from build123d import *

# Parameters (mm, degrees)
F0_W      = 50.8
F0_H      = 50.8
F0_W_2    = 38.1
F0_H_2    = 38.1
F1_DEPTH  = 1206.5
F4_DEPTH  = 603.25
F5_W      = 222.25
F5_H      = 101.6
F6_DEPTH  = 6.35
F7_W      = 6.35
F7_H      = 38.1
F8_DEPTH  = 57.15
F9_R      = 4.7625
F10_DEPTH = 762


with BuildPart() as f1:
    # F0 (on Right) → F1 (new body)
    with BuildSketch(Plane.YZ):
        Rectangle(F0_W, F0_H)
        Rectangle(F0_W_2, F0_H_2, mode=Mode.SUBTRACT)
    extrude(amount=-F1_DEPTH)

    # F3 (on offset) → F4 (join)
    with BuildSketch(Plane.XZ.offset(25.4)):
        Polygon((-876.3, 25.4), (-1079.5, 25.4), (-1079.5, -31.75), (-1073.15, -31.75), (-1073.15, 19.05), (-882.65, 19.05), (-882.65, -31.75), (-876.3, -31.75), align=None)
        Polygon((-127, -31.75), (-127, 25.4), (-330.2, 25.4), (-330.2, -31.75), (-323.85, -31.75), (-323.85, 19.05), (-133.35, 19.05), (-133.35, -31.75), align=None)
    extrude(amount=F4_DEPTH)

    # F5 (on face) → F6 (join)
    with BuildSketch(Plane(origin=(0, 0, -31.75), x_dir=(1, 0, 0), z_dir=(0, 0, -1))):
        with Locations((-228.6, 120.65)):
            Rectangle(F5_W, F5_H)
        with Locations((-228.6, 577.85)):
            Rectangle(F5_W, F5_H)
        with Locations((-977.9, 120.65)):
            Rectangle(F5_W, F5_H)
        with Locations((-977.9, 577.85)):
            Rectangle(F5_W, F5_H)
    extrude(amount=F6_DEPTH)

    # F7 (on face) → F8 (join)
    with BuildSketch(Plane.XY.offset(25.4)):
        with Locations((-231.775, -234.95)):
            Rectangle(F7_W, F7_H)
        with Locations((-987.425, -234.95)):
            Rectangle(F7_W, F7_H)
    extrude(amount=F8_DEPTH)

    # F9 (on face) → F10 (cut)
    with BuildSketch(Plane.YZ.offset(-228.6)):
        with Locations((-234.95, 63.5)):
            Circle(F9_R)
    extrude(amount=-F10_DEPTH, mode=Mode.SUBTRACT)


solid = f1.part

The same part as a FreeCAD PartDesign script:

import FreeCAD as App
import Part
import Sketcher
Q = App.Units.Quantity


def add_polygon(sketch, points):
    """Adds a closed chain of lines whose ends are joined by coincident constraints."""
    first, n = sketch.GeometryCount, len(points)
    for a, b in zip(points, points[1:] + points[:1]):
        sketch.addGeometry(Part.LineSegment(App.Vector(*a, 0), App.Vector(*b, 0)), False)
    for i in range(n):
        sketch.addConstraint(Sketcher.Constraint("Coincident", first + i, 2, first + (i + 1) % n, 1))

doc = App.newDocument("Part")
body = doc.addObject("PartDesign::Body", "Body")

# Sketch on YZ plane
sketch1 = body.newObject("Sketcher::SketchObject", "Sketch")
sketch1.AttachmentSupport = (doc.getObject("YZ_Plane"), [""])
sketch1.MapMode = "FlatFace"
add_polygon(sketch1, [(-25.4, 25.4), (-25.4, -25.4), (25.4, -25.4), (25.4, 25.4)])  # lines 0-3
add_polygon(sketch1, [(19.05, -19.05), (-19.05, -19.05), (-19.05, 19.05), (19.05, 19.05)])  # lines 4-7
sketch1.addConstraint(Sketcher.Constraint("Vertical", 0))
sketch1.addConstraint(Sketcher.Constraint("Horizontal", 1))
sketch1.addConstraint(Sketcher.Constraint("Vertical", 2))
sketch1.addConstraint(Sketcher.Constraint("Horizontal", 3))
sketch1.addConstraint(Sketcher.Constraint("Horizontal", 4))
sketch1.addConstraint(Sketcher.Constraint("Vertical", 5))
sketch1.addConstraint(Sketcher.Constraint("Horizontal", 6))
sketch1.addConstraint(Sketcher.Constraint("Vertical", 7))
sketch1.addConstraint(Sketcher.Constraint("Symmetric", 0, 2, 2, 2, -1, 1))
sketch1.addConstraint(Sketcher.Constraint("Symmetric", 4, 2, 6, 2, -1, 1))
sketch1.addConstraint(Sketcher.Constraint("Equal", 3, 0))
sketch1.addConstraint(Sketcher.Constraint("Equal", 6, 5))
sketch1.addConstraint(Sketcher.Constraint("DistanceX", 1, 1, 1, 2, Q("2 in")))
sketch1.addConstraint(Sketcher.Constraint("DistanceX", 4, 2, 4, 1, Q("1.5 in")))
pad1 = body.newObject("PartDesign::Pad", "Pad")
pad1.Profile = sketch1
pad1.Length = Q("47.5 in")
pad1.Reversed = True

# Sketch on XZ plane
sketch2 = body.newObject("Sketcher::SketchObject", "Sketch001")
sketch2.AttachmentSupport = (doc.getObject("XZ_Plane"), [""])
sketch2.MapMode = "FlatFace"
sketch2.AttachmentOffset = App.Placement(App.Vector(0, 0, 1 * 25.4), App.Rotation())
add_polygon(sketch2, [(-876.3, 25.4), (-1079.5, 25.4), (-1079.5, -31.75), (-1073.15, -31.75), (-1073.15, 19.05), (-882.65, 19.05), (-882.65, -31.75), (-876.3, -31.75)])  # lines 0-7
add_polygon(sketch2, [(-127, -31.75), (-127, 25.4), (-330.2, 25.4), (-330.2, -31.75), (-323.85, -31.75), (-323.85, 19.05), (-133.35, 19.05), (-133.35, -31.75)])  # lines 8-15
sketch2.addConstraint(Sketcher.Constraint("Horizontal", 0))
sketch2.addConstraint(Sketcher.Constraint("Vertical", 1))
sketch2.addConstraint(Sketcher.Constraint("Horizontal", 2))
sketch2.addConstraint(Sketcher.Constraint("Vertical", 3))
sketch2.addConstraint(Sketcher.Constraint("Horizontal", 4))
sketch2.addConstraint(Sketcher.Constraint("Vertical", 5))
sketch2.addConstraint(Sketcher.Constraint("Horizontal", 6))
sketch2.addConstraint(Sketcher.Constraint("Vertical", 7))
sketch2.addConstraint(Sketcher.Constraint("Vertical", 8))
sketch2.addConstraint(Sketcher.Constraint("Horizontal", 9))
sketch2.addConstraint(Sketcher.Constraint("Vertical", 10))
sketch2.addConstraint(Sketcher.Constraint("Horizontal", 11))
sketch2.addConstraint(Sketcher.Constraint("Vertical", 12))
sketch2.addConstraint(Sketcher.Constraint("Horizontal", 13))
sketch2.addConstraint(Sketcher.Constraint("Vertical", 14))
sketch2.addConstraint(Sketcher.Constraint("Horizontal", 15))
sketch2.addConstraint(Sketcher.Constraint("Horizontal", 2, 2, 5, 2))
sketch2.addConstraint(Sketcher.Constraint("Horizontal", 7, 2, 8, 2))
sketch2.addConstraint(Sketcher.Constraint("Horizontal", 6, 2, 10, 2))
sketch2.addConstraint(Sketcher.Constraint("Horizontal", 4, 2, 12, 2))
sketch2.addConstraint(Sketcher.Constraint("Horizontal", 11, 2, 14, 2))
sketch2.addConstraint(Sketcher.Constraint("Equal", 2, 6))
sketch2.addConstraint(Sketcher.Constraint("Equal", 0, 9))
sketch2.addConstraint(Sketcher.Constraint("Equal", 6, 11))
sketch2.addConstraint(Sketcher.Constraint("Equal", 4, 13))
sketch2.addConstraint(Sketcher.Constraint("DistanceX", 0, 2, 0, 1, Q("8 in")))
sketch2.addConstraint(Sketcher.Constraint("DistanceY", 3, 1, 3, 2, Q("2 in")))
sketch2.addConstraint(Sketcher.Constraint("DistanceX", 4, 1, 4, 2, Q("7.5 in")))
sketch2.addConstraint(Sketcher.Constraint("DistanceY", -1, 1, 0, 2, Q("1 in")))
sketch2.addConstraint(Sketcher.Constraint("DistanceX", 8, 2, -1, 1, Q("5 in")))
sketch2.addConstraint(Sketcher.Constraint("DistanceY", 1, 2, 1, 1, Q("2.25 in")))
sketch2.addConstraint(Sketcher.Constraint("DistanceX", 0, 2, -1, 1, Q("42.5 in")))
pad2 = body.newObject("PartDesign::Pad", "Pad001")
pad2.Profile = sketch2
pad2.Length = Q("23.75 in")

# Sketch on XY plane
sketch3 = body.newObject("Sketcher::SketchObject", "Sketch002")
sketch3.AttachmentSupport = (doc.getObject("XY_Plane"), [""])
sketch3.MapMode = "FlatFace"
sketch3.AttachmentOffset = App.Placement(App.Vector(0, 0, -1.25 * 25.4), App.Rotation())
add_polygon(sketch3, [(-339.725, -171.45), (-339.725, -69.85), (-117.475, -69.85), (-117.475, -171.45)])  # lines 0-3
add_polygon(sketch3, [(-339.725, -628.65), (-339.725, -527.05), (-117.475, -527.05), (-117.475, -628.65)])  # lines 4-7
add_polygon(sketch3, [(-1089.025, -171.45), (-1089.025, -69.85), (-866.775, -69.85), (-866.775, -171.45)])  # lines 8-11
add_polygon(sketch3, [(-1089.025, -628.65), (-1089.025, -527.05), (-866.775, -527.05), (-866.775, -628.65)])  # lines 12-15
sketch3.addConstraint(Sketcher.Constraint("Vertical", 0))
sketch3.addConstraint(Sketcher.Constraint("Horizontal", 1))
sketch3.addConstraint(Sketcher.Constraint("Vertical", 2))
sketch3.addConstraint(Sketcher.Constraint("Horizontal", 3))
sketch3.addConstraint(Sketcher.Constraint("Vertical", 4))
sketch3.addConstraint(Sketcher.Constraint("Horizontal", 5))
sketch3.addConstraint(Sketcher.Constraint("Vertical", 6))
sketch3.addConstraint(Sketcher.Constraint("Horizontal", 7))
sketch3.addConstraint(Sketcher.Constraint("Vertical", 8))
sketch3.addConstraint(Sketcher.Constraint("Horizontal", 9))
sketch3.addConstraint(Sketcher.Constraint("Vertical", 10))
sketch3.addConstraint(Sketcher.Constraint("Horizontal", 11))
sketch3.addConstraint(Sketcher.Constraint("Vertical", 12))
sketch3.addConstraint(Sketcher.Constraint("Horizontal", 13))
sketch3.addConstraint(Sketcher.Constraint("Vertical", 14))
sketch3.addConstraint(Sketcher.Constraint("Horizontal", 15))
sketch3.addConstraint(Sketcher.Constraint("Horizontal", 1, 2, 8, 2))
sketch3.addConstraint(Sketcher.Constraint("Horizontal", 3, 2, 10, 2))
sketch3.addConstraint(Sketcher.Constraint("Horizontal", 5, 2, 12, 2))
sketch3.addConstraint(Sketcher.Constraint("Horizontal", 7, 2, 14, 2))
sketch3.addConstraint(Sketcher.Constraint("Vertical", 3, 2, 4, 2))
sketch3.addConstraint(Sketcher.Constraint("Vertical", 2, 2, 5, 2))
sketch3.addConstraint(Sketcher.Constraint("Vertical", 11, 2, 12, 2))
sketch3.addConstraint(Sketcher.Constraint("Vertical", 10, 2, 13, 2))
sketch3.addConstraint(Sketcher.Constraint("Equal", 7, 9))
sketch3.addConstraint(Sketcher.Constraint("Equal", 2, 4))
sketch3.addConstraint(Sketcher.Constraint("DistanceY", 0, 1, 0, 2, Q("4 in")))
sketch3.addConstraint(Sketcher.Constraint("DistanceY", 4, 2, 3, 2, Q("14 in")))
sketch3.addConstraint(Sketcher.Constraint("DistanceX", 1, 1, 1, 2, Q("8.75 in")))
sketch3.addConstraint(Sketcher.Constraint("DistanceX", 8, 2, 0, 2, Q("29.5 in")))
sketch3.addConstraint(Sketcher.Constraint("DistanceY", 0, 2, -1, 1, Q("2.75 in")))
sketch3.addConstraint(Sketcher.Constraint("DistanceX", 0, 2, -1, 1, Q("13.375 in")))
pad3 = body.newObject("PartDesign::Pad", "Pad002")
pad3.Profile = sketch3
pad3.Length = Q("0.25 in")
pad3.Reversed = True

# Sketch on XY plane
sketch4 = body.newObject("Sketcher::SketchObject", "Sketch003")
sketch4.AttachmentSupport = (doc.getObject("XY_Plane"), [""])
sketch4.MapMode = "FlatFace"
sketch4.AttachmentOffset = App.Placement(App.Vector(0, 0, 1 * 25.4), App.Rotation())
add_polygon(sketch4, [(-234.95, -215.9), (-234.95, -254), (-228.6, -254), (-228.6, -215.9)])  # lines 0-3
add_polygon(sketch4, [(-990.6, -215.9), (-990.6, -254), (-984.25, -254), (-984.25, -215.9)])  # lines 4-7
sketch4.addConstraint(Sketcher.Constraint("Vertical", 0))
sketch4.addConstraint(Sketcher.Constraint("Horizontal", 1))
sketch4.addConstraint(Sketcher.Constraint("Vertical", 2))
sketch4.addConstraint(Sketcher.Constraint("Horizontal", 3))
sketch4.addConstraint(Sketcher.Constraint("Vertical", 4))
sketch4.addConstraint(Sketcher.Constraint("Horizontal", 5))
sketch4.addConstraint(Sketcher.Constraint("Vertical", 6))
sketch4.addConstraint(Sketcher.Constraint("Horizontal", 7))
sketch4.addConstraint(Sketcher.Constraint("Horizontal", 1, 2, 4, 2))
sketch4.addConstraint(Sketcher.Constraint("Horizontal", 3, 2, 6, 2))
sketch4.addConstraint(Sketcher.Constraint("Equal", 3, 5))
sketch4.addConstraint(Sketcher.Constraint("DistanceY", 0, 2, 0, 1, Q("1.5 in")))
sketch4.addConstraint(Sketcher.Constraint("DistanceY", 0, 2, -1, 1, Q("10 in")))
sketch4.addConstraint(Sketcher.Constraint("DistanceX", 1, 2, -1, 1, Q("9 in")))
sketch4.addConstraint(Sketcher.Constraint("DistanceX", 4, 2, -1, 1, Q("39 in")))
sketch4.addConstraint(Sketcher.Constraint("DistanceX", 1, 1, 1, 2, Q("0.25 in")))
pad4 = body.newObject("PartDesign::Pad", "Pad003")
pad4.Profile = sketch4
pad4.Length = Q("2.25 in")

# Sketch on YZ plane
sketch5 = body.newObject("Sketcher::SketchObject", "Sketch004")
sketch5.AttachmentSupport = (doc.getObject("YZ_Plane"), [""])
sketch5.MapMode = "FlatFace"
sketch5.AttachmentOffset = App.Placement(App.Vector(0, 0, -9 * 25.4), App.Rotation())
sketch5.addGeometry(Part.Circle(App.Vector(-234.95, 63.5, 0), App.Vector(0, 0, 1), 4.7625), False)
sketch5.addConstraint(Sketcher.Constraint("Diameter", 0, Q("0.375 in")))
sketch5.addConstraint(Sketcher.Constraint("DistanceY", -1, 1, 0, 3, Q("2.5 in")))
sketch5.addConstraint(Sketcher.Constraint("DistanceX", 0, 3, -1, 1, Q("9.25 in")))
pocket1 = body.newObject("PartDesign::Pocket", "Pocket")
pocket1.Profile = sketch5
pocket1.Length = Q("30 in")

doc.recompute()
